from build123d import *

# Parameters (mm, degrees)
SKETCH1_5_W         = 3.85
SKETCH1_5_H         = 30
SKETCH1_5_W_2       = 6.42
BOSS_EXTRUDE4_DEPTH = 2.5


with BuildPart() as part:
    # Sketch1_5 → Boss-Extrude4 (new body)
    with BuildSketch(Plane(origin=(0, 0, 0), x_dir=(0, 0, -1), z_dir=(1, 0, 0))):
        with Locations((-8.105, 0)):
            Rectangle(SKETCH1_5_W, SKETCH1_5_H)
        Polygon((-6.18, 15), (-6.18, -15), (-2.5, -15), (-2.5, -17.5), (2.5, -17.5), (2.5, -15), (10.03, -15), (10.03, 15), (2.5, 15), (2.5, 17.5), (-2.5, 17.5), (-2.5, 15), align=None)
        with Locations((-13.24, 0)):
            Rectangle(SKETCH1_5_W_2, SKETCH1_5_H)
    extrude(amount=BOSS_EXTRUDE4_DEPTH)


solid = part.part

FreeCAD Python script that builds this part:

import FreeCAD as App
import Part
import Sketcher
from FreeCAD import Vector

doc = App.newDocument("Part")
body = doc.addObject("PartDesign::Body", "Body")

sketch1 = body.newObject("Sketcher::SketchObject", "Sketch")
sketch1.AttachmentSupport = (doc.getObject("YZ_Plane"), [""])
sketch1.MapMode = "FlatFace"
sketch1.addGeometry([
    Part.LineSegment(Vector(-15, 2.5, 0), Vector(-17.5, 2.5, 0)),
    Part.LineSegment(Vector(-17.5, 2.5, 0), Vector(-17.5, -2.5, 0)),
    Part.LineSegment(Vector(-17.5, -2.5, 0), Vector(-15, -2.5, 0)),
    Part.LineSegment(Vector(-15, -2.5, 0), Vector(-15, -10.03, 0)),
    Part.LineSegment(Vector(-15, -10.03, 0), Vector(15, -10.03, 0)),
    Part.LineSegment(Vector(15, -10.03, 0), Vector(15, -2.5, 0)),
    Part.LineSegment(Vector(15, -2.5, 0), Vector(17.5, -2.5, 0)),
    Part.LineSegment(Vector(17.5, -2.5, 0), Vector(17.5, 2.5, 0)),
    Part.LineSegment(Vector(17.5, 2.5, 0), Vector(15, 2.5, 0)),
    Part.LineSegment(Vector(15, 2.5, 0), Vector(15, 16.45, 0)),
    Part.LineSegment(Vector(15, 16.45, 0), Vector(-15, 16.45, 0)),
    Part.LineSegment(Vector(-15, 16.45, 0), Vector(-15, 2.5, 0)),
], False)
sketch1.addConstraint([
    Sketcher.Constraint("Coincident", 0, 2, 1, 1),
    Sketcher.Constraint("Coincident", 1, 2, 2, 1),
    Sketcher.Constraint("Coincident", 2, 2, 3, 1),
    Sketcher.Constraint("Coincident", 3, 2, 4, 1),
    Sketcher.Constraint("Coincident", 4, 2, 5, 1),
    Sketcher.Constraint("Coincident", 5, 2, 6, 1),
    Sketcher.Constraint("Coincident", 6, 2, 7, 1),
    Sketcher.Constraint("Coincident", 7, 2, 8, 1),
    Sketcher.Constraint("Coincident", 8, 2, 9, 1),
    Sketcher.Constraint("Coincident", 9, 2, 10, 1),
    Sketcher.Constraint("Coincident", 10, 2, 11, 1),
    Sketcher.Constraint("Coincident", 11, 2, 0, 1),
    Sketcher.Constraint("Horizontal", 0),
    Sketcher.Constraint("Vertical", 1),
    Sketcher.Constraint("Horizontal", 2),
    Sketcher.Constraint("Vertical", 3),
    Sketcher.Constraint("Horizontal", 4),
    Sketcher.Constraint("Vertical", 5),
    Sketcher.Constraint("Horizontal", 6),
    Sketcher.Constraint("Vertical", 7),
    Sketcher.Constraint("Horizontal", 8),
    Sketcher.Constraint("Vertical", 9),
    Sketcher.Constraint("Horizontal", 10),
    Sketcher.Constraint("Vertical", 11),
    Sketcher.Constraint("Symmetric", 0, 2, 6, 2, -1, 1),
    Sketcher.Constraint("Symmetric", 2, 2, 8, 2, -1, 1),
    Sketcher.Constraint("Symmetric", 2, 2, 5, 2, -2),
    Sketcher.Constraint("Vertical", 3, 2, 10, 2),
    Sketcher.Constraint("DistanceX", 4, 1, 4, 2, 30.0),
    Sketcher.Constraint("DistanceY", 1, 2, 1, 1, 5.0),
    Sketcher.Constraint("DistanceX", 0, 2, 0, 1, 2.5),
    Sketcher.Constraint("DistanceY", 3, 2, 3, 1, 7.53),
    Sketcher.Constraint("DistanceY", 9, 1, 9, 2, 13.95),
])
pad1 = body.newObject("PartDesign::Pad", "Pad")
pad1.Profile = sketch1
pad1.Length = 2.5

doc.recompute()
